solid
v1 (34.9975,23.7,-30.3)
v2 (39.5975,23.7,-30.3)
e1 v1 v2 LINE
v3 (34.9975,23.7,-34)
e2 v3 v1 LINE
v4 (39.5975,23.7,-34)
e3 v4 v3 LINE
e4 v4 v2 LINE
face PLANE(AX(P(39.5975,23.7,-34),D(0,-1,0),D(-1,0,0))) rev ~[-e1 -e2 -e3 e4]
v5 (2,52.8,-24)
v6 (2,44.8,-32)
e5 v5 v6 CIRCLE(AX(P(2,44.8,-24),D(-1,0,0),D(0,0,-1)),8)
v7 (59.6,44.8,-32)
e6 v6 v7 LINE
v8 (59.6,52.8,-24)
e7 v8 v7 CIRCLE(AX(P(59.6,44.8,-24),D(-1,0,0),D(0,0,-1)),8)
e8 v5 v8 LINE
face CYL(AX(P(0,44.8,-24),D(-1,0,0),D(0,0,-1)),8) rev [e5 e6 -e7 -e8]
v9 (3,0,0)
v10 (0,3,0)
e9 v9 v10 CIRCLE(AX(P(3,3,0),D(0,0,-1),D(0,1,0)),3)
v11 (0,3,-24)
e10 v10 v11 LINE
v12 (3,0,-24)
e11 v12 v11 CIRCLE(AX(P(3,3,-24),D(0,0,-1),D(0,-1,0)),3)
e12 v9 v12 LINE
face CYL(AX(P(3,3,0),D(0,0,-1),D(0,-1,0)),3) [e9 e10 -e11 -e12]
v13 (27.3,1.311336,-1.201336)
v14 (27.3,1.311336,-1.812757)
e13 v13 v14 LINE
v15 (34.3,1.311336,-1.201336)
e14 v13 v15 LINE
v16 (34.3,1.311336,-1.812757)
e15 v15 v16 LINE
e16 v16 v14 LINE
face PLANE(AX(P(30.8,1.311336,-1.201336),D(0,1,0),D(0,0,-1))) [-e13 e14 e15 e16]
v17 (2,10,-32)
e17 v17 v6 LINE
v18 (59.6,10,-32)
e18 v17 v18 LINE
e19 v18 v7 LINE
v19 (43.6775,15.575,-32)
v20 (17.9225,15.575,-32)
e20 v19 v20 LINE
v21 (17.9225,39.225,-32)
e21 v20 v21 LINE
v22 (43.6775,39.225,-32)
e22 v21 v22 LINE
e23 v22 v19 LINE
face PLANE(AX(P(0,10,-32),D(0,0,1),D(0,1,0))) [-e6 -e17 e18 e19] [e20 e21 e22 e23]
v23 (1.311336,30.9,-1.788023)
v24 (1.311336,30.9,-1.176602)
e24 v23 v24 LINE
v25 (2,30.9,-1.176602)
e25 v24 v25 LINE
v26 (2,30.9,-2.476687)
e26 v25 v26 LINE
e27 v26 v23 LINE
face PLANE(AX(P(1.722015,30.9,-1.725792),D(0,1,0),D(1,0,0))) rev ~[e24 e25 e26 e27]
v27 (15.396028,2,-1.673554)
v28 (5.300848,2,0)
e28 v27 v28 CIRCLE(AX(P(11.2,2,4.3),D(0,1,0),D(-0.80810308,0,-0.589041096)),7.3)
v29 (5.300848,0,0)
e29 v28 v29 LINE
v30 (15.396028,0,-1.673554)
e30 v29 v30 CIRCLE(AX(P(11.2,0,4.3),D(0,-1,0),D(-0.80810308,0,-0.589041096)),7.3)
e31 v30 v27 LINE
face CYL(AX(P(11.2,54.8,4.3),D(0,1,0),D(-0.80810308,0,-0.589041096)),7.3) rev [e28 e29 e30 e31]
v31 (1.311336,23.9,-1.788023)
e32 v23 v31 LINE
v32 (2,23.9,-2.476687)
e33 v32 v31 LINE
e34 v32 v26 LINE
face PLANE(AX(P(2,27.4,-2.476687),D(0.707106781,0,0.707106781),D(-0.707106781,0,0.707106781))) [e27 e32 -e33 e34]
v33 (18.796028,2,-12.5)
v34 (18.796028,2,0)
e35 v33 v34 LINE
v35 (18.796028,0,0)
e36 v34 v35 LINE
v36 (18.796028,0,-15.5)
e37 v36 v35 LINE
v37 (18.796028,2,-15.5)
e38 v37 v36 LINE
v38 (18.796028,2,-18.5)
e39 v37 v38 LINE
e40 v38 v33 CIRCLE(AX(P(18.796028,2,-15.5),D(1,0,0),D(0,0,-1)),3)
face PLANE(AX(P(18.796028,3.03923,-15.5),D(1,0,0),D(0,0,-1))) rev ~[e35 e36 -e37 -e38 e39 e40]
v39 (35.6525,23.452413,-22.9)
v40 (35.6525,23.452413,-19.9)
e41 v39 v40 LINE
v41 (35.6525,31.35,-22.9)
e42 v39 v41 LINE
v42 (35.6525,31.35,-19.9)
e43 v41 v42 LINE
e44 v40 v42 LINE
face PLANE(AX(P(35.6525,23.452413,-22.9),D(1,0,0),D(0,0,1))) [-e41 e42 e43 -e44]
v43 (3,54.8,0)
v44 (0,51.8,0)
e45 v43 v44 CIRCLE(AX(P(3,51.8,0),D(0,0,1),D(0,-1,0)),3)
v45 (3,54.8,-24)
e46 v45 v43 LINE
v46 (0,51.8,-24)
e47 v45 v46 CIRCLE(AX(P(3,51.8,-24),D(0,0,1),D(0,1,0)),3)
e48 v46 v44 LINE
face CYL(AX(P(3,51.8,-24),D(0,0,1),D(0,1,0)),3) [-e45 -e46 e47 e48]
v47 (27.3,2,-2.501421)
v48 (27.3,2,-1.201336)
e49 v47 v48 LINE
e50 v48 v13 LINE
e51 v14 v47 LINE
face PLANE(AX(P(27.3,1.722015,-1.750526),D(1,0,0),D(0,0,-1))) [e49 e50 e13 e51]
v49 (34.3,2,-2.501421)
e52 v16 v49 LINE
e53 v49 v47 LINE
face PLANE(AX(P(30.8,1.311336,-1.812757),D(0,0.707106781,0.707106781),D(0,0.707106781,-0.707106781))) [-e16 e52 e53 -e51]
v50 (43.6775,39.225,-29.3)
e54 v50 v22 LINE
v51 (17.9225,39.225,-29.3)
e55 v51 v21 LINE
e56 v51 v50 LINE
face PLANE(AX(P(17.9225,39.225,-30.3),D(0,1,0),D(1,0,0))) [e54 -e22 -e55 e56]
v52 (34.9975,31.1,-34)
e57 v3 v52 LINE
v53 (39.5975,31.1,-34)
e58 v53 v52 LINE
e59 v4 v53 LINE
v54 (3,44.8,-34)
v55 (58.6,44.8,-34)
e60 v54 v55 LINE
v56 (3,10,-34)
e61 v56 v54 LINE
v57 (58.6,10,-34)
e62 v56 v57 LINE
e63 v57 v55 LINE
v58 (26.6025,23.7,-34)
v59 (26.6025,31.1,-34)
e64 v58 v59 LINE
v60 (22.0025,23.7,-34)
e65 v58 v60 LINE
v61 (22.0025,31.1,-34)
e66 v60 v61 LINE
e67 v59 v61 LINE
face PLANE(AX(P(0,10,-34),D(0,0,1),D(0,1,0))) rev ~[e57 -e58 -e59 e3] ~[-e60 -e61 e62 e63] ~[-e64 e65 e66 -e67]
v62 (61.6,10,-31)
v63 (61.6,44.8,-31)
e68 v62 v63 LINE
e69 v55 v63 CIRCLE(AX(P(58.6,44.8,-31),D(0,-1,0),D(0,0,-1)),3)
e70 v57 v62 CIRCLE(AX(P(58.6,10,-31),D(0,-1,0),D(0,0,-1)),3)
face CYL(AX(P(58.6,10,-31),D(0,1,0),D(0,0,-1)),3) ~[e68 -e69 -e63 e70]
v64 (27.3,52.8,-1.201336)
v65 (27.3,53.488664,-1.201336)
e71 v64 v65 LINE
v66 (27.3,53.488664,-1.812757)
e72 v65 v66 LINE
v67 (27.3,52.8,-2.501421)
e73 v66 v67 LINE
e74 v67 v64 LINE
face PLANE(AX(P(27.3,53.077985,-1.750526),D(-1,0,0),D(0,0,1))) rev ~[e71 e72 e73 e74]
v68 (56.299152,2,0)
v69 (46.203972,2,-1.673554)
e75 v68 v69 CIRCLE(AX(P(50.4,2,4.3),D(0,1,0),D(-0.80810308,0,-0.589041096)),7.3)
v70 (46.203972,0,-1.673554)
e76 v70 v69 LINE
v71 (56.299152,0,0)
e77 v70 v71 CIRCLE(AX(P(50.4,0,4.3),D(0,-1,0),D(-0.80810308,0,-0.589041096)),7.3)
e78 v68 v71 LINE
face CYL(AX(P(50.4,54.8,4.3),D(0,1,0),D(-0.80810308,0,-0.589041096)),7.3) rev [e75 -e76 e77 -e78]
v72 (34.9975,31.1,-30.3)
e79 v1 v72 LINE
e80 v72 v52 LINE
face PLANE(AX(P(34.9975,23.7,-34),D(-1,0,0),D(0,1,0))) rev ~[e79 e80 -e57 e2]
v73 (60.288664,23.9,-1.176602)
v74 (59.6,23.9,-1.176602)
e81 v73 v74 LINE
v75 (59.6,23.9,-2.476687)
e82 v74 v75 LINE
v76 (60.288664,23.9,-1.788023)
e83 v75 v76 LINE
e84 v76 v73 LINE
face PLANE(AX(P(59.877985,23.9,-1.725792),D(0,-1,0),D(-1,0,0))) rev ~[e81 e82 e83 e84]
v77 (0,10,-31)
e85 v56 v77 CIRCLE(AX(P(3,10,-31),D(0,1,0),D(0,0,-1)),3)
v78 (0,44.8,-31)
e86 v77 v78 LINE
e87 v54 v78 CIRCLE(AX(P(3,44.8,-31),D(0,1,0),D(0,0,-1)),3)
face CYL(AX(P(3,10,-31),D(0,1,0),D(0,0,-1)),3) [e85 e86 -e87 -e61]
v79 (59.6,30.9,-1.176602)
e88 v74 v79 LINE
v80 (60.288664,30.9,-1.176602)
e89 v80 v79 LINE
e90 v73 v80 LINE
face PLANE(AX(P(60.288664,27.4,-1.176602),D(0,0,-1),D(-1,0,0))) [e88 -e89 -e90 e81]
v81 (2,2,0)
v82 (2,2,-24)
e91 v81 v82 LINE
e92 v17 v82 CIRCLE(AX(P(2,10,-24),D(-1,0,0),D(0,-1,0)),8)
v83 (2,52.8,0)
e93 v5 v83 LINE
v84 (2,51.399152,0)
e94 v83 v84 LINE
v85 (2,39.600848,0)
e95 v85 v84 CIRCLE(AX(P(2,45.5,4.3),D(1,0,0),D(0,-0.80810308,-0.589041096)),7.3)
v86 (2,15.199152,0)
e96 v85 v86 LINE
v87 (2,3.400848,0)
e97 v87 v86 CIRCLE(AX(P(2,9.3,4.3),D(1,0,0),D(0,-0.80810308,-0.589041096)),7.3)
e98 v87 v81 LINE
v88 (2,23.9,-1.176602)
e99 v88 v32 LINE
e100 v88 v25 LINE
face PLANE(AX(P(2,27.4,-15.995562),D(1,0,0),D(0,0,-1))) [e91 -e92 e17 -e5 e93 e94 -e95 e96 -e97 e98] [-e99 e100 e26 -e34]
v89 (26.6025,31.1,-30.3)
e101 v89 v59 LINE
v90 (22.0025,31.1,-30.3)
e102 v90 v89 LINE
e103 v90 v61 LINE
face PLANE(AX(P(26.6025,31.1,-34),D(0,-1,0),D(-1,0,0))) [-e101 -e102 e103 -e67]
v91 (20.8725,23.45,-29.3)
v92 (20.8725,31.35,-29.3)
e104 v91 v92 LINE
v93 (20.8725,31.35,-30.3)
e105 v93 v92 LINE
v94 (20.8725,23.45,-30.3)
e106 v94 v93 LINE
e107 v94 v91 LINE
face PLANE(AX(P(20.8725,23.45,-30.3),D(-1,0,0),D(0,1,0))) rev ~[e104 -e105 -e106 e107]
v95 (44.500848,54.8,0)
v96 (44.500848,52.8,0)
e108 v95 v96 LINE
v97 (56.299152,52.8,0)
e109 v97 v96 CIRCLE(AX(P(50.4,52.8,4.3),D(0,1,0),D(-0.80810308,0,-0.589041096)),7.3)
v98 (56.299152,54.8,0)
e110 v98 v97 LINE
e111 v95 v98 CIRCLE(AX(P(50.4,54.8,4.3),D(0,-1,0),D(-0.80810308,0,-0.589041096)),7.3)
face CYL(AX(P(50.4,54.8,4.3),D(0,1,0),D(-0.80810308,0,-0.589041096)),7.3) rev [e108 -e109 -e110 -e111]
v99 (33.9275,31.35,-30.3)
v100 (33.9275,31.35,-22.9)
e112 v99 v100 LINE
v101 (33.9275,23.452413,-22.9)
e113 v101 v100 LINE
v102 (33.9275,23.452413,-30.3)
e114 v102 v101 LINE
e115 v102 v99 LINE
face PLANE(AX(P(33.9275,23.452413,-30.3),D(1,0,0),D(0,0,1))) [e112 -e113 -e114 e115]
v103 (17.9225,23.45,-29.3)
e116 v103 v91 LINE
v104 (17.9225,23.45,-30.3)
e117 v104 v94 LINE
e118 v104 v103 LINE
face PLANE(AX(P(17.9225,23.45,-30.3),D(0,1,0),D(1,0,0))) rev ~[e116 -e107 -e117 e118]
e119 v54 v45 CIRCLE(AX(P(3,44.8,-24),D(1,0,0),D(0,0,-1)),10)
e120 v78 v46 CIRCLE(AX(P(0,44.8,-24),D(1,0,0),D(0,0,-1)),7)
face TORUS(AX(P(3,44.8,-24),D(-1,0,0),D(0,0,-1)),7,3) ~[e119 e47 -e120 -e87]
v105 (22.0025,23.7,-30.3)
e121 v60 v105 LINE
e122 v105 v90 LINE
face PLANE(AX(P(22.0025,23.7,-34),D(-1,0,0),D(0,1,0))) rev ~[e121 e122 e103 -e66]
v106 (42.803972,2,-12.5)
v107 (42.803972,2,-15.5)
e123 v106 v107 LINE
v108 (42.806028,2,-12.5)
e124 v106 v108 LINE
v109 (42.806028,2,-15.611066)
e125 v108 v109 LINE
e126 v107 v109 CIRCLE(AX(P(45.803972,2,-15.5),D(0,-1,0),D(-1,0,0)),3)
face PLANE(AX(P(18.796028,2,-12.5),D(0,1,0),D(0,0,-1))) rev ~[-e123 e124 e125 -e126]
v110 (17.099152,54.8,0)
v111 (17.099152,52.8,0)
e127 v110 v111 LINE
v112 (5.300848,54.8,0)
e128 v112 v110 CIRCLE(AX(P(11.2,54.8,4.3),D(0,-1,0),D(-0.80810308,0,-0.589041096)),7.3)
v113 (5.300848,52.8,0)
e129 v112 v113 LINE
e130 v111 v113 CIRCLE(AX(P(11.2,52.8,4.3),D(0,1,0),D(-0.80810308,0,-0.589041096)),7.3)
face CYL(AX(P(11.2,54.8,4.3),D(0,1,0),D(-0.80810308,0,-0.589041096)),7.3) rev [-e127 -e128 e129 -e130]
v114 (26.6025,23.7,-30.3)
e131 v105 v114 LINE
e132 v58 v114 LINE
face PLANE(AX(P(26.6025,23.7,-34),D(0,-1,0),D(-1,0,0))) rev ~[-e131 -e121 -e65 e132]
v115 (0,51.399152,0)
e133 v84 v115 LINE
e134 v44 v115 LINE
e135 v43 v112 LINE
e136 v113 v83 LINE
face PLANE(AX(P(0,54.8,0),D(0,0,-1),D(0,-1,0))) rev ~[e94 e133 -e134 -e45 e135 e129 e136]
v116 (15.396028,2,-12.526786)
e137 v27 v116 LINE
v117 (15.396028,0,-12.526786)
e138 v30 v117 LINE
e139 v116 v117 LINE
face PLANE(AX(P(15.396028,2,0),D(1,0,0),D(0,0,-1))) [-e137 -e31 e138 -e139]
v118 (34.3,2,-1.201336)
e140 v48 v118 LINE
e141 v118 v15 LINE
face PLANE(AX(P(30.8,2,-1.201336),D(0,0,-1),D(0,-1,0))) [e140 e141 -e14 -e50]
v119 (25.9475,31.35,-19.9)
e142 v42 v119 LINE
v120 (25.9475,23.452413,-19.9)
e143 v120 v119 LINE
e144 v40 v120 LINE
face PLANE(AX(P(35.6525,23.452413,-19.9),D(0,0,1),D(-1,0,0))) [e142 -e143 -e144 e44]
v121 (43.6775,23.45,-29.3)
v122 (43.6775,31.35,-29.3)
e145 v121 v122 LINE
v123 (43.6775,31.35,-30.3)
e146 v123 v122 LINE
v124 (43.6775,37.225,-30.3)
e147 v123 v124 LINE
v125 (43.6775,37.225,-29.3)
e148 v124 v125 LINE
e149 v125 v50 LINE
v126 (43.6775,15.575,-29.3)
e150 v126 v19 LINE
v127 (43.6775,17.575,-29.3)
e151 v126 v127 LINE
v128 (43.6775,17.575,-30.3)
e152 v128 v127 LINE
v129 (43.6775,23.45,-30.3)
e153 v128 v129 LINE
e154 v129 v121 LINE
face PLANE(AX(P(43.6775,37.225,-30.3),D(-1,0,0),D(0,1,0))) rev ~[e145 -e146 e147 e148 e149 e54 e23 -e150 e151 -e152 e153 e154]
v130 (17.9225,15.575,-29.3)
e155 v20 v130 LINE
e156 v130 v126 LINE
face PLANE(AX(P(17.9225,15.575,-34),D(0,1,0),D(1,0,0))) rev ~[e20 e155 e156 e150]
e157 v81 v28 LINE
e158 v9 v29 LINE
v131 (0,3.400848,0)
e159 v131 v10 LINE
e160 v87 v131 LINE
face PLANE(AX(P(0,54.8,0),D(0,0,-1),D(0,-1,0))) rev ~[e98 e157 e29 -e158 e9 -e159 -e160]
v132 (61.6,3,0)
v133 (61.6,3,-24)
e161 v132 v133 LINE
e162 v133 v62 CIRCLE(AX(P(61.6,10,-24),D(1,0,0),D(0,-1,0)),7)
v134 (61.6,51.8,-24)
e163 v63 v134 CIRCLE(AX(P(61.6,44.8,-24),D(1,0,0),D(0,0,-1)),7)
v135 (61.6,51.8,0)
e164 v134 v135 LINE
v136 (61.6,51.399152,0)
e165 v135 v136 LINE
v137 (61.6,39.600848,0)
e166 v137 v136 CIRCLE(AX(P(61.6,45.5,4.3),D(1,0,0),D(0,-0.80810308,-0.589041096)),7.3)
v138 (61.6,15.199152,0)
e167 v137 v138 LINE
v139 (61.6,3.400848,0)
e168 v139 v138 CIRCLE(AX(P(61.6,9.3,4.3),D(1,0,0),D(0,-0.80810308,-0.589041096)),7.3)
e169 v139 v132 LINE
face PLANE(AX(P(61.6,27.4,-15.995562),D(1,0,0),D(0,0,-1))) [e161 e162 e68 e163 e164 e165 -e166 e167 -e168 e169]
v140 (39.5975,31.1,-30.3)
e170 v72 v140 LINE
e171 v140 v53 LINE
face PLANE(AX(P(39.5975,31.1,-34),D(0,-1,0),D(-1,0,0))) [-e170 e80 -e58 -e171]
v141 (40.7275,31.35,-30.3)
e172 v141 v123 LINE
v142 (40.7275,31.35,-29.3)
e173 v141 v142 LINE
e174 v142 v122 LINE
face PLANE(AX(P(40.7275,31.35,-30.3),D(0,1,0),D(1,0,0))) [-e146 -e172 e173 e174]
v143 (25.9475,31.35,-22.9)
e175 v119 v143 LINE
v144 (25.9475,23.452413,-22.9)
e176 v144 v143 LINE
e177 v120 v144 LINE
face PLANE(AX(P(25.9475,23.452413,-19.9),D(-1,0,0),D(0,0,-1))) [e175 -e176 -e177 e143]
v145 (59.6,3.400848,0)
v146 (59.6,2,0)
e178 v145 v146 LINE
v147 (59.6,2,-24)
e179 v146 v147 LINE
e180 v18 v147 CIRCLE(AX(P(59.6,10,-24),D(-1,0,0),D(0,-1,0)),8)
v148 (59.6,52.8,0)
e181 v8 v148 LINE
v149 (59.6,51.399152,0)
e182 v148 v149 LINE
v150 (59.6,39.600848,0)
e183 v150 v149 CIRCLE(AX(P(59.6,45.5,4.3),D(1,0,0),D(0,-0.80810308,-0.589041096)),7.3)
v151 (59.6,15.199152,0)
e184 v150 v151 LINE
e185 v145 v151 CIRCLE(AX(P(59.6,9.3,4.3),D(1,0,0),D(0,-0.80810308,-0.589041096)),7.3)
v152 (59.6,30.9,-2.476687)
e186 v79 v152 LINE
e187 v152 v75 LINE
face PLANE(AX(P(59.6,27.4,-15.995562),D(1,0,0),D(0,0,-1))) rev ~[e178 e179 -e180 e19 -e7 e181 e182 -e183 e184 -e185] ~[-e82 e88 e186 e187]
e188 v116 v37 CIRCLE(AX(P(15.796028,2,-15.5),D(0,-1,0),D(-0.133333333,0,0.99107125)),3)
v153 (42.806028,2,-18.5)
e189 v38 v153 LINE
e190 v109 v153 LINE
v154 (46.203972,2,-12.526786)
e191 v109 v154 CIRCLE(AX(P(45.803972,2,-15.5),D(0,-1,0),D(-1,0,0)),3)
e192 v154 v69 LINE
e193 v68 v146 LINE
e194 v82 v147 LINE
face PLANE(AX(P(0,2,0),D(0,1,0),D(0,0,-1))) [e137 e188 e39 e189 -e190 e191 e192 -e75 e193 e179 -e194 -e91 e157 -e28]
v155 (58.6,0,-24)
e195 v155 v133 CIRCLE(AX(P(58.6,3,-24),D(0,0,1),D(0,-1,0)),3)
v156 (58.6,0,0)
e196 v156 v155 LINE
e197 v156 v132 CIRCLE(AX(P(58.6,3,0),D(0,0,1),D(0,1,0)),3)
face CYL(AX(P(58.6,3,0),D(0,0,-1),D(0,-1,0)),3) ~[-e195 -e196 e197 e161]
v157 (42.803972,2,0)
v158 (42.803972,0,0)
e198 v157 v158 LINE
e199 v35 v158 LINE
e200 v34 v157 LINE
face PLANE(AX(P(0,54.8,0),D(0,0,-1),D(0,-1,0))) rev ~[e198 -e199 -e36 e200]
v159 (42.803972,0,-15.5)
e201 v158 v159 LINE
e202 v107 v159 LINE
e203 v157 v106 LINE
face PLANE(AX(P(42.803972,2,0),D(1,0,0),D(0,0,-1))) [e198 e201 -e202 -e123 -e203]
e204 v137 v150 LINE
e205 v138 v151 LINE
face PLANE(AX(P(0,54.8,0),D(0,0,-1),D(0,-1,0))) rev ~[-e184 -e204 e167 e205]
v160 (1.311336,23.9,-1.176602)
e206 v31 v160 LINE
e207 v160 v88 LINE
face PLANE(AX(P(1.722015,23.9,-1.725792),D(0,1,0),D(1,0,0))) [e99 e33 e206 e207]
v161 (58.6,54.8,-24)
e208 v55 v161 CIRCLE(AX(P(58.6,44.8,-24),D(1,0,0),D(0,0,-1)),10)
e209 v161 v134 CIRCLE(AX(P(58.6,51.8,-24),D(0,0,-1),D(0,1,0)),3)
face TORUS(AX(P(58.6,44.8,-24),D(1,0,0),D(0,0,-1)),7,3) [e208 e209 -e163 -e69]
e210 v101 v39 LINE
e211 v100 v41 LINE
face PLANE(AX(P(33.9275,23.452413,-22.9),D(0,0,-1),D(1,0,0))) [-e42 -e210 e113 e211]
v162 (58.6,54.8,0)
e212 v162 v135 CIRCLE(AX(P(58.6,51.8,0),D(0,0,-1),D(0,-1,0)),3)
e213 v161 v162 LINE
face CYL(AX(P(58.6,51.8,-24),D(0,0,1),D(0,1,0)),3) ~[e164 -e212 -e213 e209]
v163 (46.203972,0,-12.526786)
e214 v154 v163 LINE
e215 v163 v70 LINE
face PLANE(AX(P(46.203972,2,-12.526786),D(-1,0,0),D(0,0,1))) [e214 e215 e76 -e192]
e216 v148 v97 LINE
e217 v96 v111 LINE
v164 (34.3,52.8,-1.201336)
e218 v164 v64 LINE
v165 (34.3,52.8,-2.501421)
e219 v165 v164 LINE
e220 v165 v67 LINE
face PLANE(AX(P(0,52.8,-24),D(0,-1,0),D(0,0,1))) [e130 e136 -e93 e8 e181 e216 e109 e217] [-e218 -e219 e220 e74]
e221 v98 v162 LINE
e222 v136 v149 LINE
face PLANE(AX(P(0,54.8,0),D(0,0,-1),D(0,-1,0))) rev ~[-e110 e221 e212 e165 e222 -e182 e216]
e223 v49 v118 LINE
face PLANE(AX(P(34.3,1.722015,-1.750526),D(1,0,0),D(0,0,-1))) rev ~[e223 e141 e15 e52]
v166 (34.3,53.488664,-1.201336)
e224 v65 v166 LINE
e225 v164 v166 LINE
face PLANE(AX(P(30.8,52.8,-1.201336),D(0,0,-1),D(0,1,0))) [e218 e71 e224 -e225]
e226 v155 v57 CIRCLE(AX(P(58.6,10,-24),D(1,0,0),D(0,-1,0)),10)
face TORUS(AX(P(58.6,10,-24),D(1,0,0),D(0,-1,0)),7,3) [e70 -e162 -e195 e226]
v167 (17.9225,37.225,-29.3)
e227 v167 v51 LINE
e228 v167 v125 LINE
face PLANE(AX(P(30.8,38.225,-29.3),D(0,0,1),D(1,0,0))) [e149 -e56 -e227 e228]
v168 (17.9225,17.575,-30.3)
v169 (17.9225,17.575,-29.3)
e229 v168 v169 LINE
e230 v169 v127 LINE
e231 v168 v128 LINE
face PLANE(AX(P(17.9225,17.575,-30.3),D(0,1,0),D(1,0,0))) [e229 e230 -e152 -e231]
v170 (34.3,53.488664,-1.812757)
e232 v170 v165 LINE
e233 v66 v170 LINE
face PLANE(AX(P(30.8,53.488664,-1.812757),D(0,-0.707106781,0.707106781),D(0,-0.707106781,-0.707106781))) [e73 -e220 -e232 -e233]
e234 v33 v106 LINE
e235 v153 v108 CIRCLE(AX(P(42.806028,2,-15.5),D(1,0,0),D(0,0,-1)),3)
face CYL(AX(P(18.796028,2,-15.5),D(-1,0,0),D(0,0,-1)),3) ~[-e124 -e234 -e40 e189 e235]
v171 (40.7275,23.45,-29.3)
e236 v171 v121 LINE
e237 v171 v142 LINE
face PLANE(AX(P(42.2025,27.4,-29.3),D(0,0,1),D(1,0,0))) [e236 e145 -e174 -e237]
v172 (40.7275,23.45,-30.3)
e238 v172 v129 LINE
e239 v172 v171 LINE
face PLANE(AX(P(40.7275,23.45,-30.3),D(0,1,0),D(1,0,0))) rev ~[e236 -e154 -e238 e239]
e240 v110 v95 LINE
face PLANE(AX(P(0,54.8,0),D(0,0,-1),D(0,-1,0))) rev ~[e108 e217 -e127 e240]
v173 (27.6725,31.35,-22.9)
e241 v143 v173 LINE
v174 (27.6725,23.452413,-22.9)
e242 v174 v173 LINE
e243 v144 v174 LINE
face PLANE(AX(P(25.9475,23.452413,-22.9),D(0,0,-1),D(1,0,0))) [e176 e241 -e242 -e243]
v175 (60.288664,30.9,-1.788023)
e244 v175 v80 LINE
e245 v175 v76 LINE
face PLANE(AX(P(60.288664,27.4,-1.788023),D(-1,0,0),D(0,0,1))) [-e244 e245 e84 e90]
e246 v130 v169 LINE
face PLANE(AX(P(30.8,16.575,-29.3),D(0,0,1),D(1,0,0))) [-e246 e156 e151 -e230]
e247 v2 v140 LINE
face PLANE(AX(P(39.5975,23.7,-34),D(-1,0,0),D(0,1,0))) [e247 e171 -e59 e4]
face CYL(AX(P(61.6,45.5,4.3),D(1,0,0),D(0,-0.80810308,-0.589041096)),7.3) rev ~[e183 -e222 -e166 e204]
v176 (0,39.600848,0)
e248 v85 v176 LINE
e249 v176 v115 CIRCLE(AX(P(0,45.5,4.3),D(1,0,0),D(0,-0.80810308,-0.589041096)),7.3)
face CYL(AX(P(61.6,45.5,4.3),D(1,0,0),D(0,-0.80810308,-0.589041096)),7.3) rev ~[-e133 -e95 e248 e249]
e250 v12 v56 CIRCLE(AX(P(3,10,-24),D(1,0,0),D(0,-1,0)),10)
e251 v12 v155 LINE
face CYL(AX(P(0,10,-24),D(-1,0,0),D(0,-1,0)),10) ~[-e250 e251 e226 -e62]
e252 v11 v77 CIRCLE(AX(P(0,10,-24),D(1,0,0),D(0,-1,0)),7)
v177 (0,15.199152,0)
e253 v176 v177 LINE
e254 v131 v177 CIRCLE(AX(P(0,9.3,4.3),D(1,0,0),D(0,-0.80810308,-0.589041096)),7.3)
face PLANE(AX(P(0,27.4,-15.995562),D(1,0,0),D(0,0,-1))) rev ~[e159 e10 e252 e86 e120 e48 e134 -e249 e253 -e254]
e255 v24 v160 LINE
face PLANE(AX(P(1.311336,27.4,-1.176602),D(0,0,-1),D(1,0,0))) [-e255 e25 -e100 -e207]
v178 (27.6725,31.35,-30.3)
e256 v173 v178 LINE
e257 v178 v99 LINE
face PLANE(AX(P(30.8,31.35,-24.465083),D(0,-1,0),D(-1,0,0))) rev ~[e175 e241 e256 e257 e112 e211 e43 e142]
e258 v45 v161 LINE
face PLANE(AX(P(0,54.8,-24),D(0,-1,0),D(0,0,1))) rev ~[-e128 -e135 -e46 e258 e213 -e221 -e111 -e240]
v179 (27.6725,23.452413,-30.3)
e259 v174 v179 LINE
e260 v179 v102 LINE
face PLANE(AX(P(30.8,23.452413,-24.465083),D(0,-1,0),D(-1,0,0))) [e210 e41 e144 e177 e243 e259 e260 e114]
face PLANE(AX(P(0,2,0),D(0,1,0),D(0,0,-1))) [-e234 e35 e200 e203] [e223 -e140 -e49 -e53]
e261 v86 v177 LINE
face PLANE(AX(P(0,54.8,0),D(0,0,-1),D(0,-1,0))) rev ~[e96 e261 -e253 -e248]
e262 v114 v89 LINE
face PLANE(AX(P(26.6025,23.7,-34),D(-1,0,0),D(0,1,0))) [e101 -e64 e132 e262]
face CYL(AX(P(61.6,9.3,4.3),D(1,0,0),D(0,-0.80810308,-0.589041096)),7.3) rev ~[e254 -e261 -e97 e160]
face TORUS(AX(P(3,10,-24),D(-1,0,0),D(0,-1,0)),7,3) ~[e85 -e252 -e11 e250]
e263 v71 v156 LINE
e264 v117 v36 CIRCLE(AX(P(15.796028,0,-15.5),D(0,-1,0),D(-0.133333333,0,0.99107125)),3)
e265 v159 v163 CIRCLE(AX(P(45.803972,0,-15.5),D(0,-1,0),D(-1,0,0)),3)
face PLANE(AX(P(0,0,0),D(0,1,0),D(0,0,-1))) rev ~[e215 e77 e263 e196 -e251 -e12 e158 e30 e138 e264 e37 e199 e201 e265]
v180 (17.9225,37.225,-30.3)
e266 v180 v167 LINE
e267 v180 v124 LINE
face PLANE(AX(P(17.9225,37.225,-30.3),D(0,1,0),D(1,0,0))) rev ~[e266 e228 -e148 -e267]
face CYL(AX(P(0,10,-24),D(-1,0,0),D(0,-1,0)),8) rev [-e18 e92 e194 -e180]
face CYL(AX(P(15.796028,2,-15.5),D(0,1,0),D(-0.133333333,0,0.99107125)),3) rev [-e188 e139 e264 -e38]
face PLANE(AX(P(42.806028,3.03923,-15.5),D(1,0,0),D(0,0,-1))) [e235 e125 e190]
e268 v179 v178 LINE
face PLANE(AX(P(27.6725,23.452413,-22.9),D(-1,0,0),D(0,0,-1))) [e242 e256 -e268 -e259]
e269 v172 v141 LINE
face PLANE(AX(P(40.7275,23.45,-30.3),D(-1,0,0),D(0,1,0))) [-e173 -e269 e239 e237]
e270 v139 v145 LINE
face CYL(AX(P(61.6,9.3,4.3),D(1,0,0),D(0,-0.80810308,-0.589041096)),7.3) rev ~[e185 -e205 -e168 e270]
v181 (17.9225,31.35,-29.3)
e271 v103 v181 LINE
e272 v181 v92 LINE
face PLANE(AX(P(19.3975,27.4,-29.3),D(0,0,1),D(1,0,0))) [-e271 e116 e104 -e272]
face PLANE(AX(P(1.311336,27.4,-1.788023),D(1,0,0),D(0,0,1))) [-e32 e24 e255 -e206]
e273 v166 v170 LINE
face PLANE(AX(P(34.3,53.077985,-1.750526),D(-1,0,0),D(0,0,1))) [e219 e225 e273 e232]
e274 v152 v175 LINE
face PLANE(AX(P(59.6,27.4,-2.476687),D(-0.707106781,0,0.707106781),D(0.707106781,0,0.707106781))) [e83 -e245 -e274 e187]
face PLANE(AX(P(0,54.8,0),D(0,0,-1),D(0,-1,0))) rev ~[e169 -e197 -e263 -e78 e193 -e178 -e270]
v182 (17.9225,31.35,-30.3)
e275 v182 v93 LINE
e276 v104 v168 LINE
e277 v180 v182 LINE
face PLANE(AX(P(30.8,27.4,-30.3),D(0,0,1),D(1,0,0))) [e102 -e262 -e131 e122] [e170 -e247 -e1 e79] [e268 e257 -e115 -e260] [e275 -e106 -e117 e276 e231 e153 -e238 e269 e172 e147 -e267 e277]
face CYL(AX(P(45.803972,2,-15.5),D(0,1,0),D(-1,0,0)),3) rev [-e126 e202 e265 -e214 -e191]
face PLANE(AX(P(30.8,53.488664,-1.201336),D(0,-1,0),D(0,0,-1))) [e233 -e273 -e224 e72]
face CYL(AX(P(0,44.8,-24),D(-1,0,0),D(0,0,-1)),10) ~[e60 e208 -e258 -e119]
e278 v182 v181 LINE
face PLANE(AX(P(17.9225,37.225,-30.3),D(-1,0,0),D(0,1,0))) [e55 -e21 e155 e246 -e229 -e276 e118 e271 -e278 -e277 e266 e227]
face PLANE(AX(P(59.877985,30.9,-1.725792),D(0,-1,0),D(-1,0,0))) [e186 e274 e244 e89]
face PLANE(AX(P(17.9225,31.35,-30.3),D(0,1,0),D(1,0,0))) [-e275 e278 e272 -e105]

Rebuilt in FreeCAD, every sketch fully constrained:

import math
import FreeCAD as App
import Part
import Sketcher
Q = App.Units.Quantity


def edges_at(feature, points):
    """Names of the edges that pass closest to the given points."""
    edges = feature.Shape.Edges
    near = lambda p: min(range(len(edges)), key=lambda i: edges[i].distToShape(Part.Vertex(*p))[0])
    return sorted({f"Edge{near(p) + 1}" for p in points})


def faces_at(feature, points):
    """Names of the faces that lie closest to the given points."""
    faces = feature.Shape.Faces
    near = lambda p: min(range(len(faces)), key=lambda i: faces[i].distToShape(Part.Vertex(*p))[0])
    return sorted({f"Face{near(p) + 1}" for p in points})


def add_polygon(sketch, points):
    """Adds a closed chain of lines whose ends are joined by coincident constraints."""
    first, n = sketch.GeometryCount, len(points)
    for a, b in zip(points, points[1:] + points[:1]):
        sketch.addGeometry(Part.LineSegment(App.Vector(*a, 0), App.Vector(*b, 0)), False)
    for i in range(n):
        sketch.addConstraint(Sketcher.Constraint("Coincident", first + i, 2, first + (i + 1) % n, 1))

doc = App.newDocument("Part")
body = doc.addObject("PartDesign::Body", "Body")

sketch1 = body.newObject("Sketcher::SketchObject", "Sketch")
sketch1.AttachmentSupport = (doc.getObject("YZ_Plane"), [""])
sketch1.MapMode = "FlatFace"
sketch1.addGeometry([
    Part.LineSegment(App.Vector(0, 0, 0), App.Vector(0, -24, 0)),
    Part.ArcOfCircle(Part.Circle(App.Vector(10, -24, 0), App.Vector(0, 0, 1), 10), math.radians(180), math.radians(270)),
    Part.LineSegment(App.Vector(10, -34, 0), App.Vector(45, -34, 0)),
    Part.ArcOfCircle(Part.Circle(App.Vector(45, -24, 0), App.Vector(0, 0, 1), 10), math.radians(-90), math.radians(0)),
    Part.LineSegment(App.Vector(55, -24, 0), App.Vector(55, 0, 0)),
    Part.LineSegment(App.Vector(55, 0, 0), App.Vector(0, 0, 0)),
], False)
sketch1.addConstraint([
    Sketcher.Constraint("Tangent", 0, 2, 1, 1),
    Sketcher.Constraint("Tangent", 1, 2, 2, 1),
    Sketcher.Constraint("Tangent", 2, 2, 3, 1),
    Sketcher.Constraint("Tangent", 3, 2, 4, 1),
    Sketcher.Constraint("Coincident", 4, 2, 5, 1),
    Sketcher.Constraint("Coincident", 5, 2, 0, 1),
    Sketcher.Constraint("Vertical", 0),
    Sketcher.Constraint("Horizontal", 2),
    Sketcher.Constraint("Vertical", 4),
    Sketcher.Constraint("Horizontal", 5),
    Sketcher.Constraint("Coincident", 5, 2, -1, 1),
    Sketcher.Constraint("Equal", 1, 3),
    Sketcher.Constraint("Radius", 1, Q("10 mm")),
    Sketcher.Constraint("DistanceY", 0, 2, 0, 1, Q("24 mm")),
    Sketcher.Constraint("DistanceX", 2, 1, 2, 2, Q("34.8 mm")),
])
pad1 = body.newObject("PartDesign::Pad", "Pad")
pad1.Profile = sketch1
pad1.Length = 61.6
doc.recompute()

thickness = body.newObject("PartDesign::Thickness", "Thickness")
thickness.Base = (pad1, faces_at(pad1, [(30.8, 27.4, 0)]))
thickness.Value = 2
thickness.Reversed = True
thickness.Join = "Intersection"
doc.recompute()

fillet = body.newObject("PartDesign::Fillet", "Fillet")
fillet.Base = (thickness, edges_at(thickness, [
    (61.6, 2.929, -31.071),
    (61.6, 27.4, -34),
    (61.6, 51.871, -31.071),
    (61.6, 54.8, -12),
    (0, 54.8, -12),
    (0, 51.871, -31.071),
    (0, 27.4, -34),
    (61.6, 0, -12),
    (0, 2.929, -31.071),
    (0, 0, -12),
]))
fillet.Radius = 3

sketch2 = body.newObject("Sketcher::SketchObject", "Sketch001")
sketch2.AttachmentSupport = (doc.getObject("XY_Plane"), [""])
sketch2.MapMode = "FlatFace"
sketch2.AttachmentOffset = App.Placement(App.Vector(0, 0, -34), App.Rotation())
add_polygon(sketch2, [(39.6, 31.1), (39.6, 23.7), (35, 23.7), (35, 31.1)])
sketch2.addConstraint([
    Sketcher.Constraint("Vertical", 0),
    Sketcher.Constraint("Horizontal", 1),
    Sketcher.Constraint("Vertical", 2),
    Sketcher.Constraint("Horizontal", 3),
    Sketcher.Constraint("DistanceX", 1, 2, 1, 1, Q("4.6 mm")),
    Sketcher.Constraint("DistanceY", 0, 2, 0, 1, Q("7.4 mm")),
    Sketcher.Constraint("DistanceY", -1, 1, 0, 2, Q("23.7 mm")),
    Sketcher.Constraint("DistanceX", -1, 1, 0, 2, Q("39.5975 mm")),
])
pocket1 = body.newObject("PartDesign::Pocket", "Pocket")
pocket1.Profile = sketch2
pocket1.Type = "UpToFirst"
pocket1.Reversed = True

sketch3 = body.newObject("Sketcher::SketchObject", "Sketch002")
sketch3.AttachmentSupport = (doc.getObject("XY_Plane"), [""])
sketch3.MapMode = "FlatFace"
sketch3.AttachmentOffset = App.Placement(App.Vector(0, 0, -34), App.Rotation())
add_polygon(sketch3, [(26.6, 31.1), (26.6, 23.7), (22, 23.7), (22, 31.1)])
sketch3.addConstraint([
    Sketcher.Constraint("Vertical", 0),
    Sketcher.Constraint("Horizontal", 1),
    Sketcher.Constraint("Vertical", 2),
    Sketcher.Constraint("Horizontal", 3),
    Sketcher.Constraint("DistanceX", 1, 2, 1, 1, Q("4.6 mm")),
    Sketcher.Constraint("DistanceY", 0, 2, 0, 1, Q("7.4 mm")),
    Sketcher.Constraint("DistanceY", -1, 1, 0, 2, Q("23.7 mm")),
    Sketcher.Constraint("DistanceX", -1, 1, 0, 2, Q("26.6025 mm")),
])
pocket2 = body.newObject("PartDesign::Pocket", "Pocket001")
pocket2.Profile = sketch3
pocket2.Type = "UpToFirst"
pocket2.Reversed = True

sketch4 = body.newObject("Sketcher::SketchObject", "Sketch003")
sketch4.AttachmentSupport = (doc.getObject("XY_Plane"), [""])
sketch4.MapMode = "FlatFace"
sketch4.AttachmentOffset = App.Placement(App.Vector(0, 0, -34), App.Rotation())
add_polygon(sketch4, [(17.9, 15.6), (43.7, 15.6), (43.7, 39.2), (17.9, 39.2)])
add_polygon(sketch4, [(26.6, 23.7), (22, 23.7), (22, 31.1), (26.6, 31.1)])
add_polygon(sketch4, [(39.6, 23.7), (35, 23.7), (35, 31.1), (39.6, 31.1)])
sketch4.addConstraint([
    Sketcher.Constraint("Horizontal", 0),
    Sketcher.Constraint("Vertical", 1),
    Sketcher.Constraint("Horizontal", 2),
    Sketcher.Constraint("Vertical", 3),
    Sketcher.Constraint("Horizontal", 4),
    Sketcher.Constraint("Vertical", 5),
    Sketcher.Constraint("Horizontal", 6),
    Sketcher.Constraint("Vertical", 7),
    Sketcher.Constraint("Horizontal", 8),
    Sketcher.Constraint("Vertical", 9),
    Sketcher.Constraint("Horizontal", 10),
    Sketcher.Constraint("Vertical", 11),
    Sketcher.Constraint("Horizontal", 7, 2, 8, 2),
    Sketcher.Constraint("Horizontal", 6, 2, 9, 2),
    Sketcher.Constraint("Equal", 6, 8),
    Sketcher.Constraint("DistanceX", 4, 2, 4, 1, Q("4.6 mm")),
    Sketcher.Constraint("DistanceY", 5, 1, 5, 2, Q("7.4 mm")),
    Sketcher.Constraint("DistanceY", 1, 1, 1, 2, Q("23.65 mm")),
    Sketcher.Constraint("DistanceY", -1, 1, 4, 2, Q("23.7 mm")),
    Sketcher.Constraint("DistanceX", 0, 1, 0, 2, Q("25.755 mm")),
    Sketcher.Constraint("DistanceX", 3, 2, 4, 2, Q("4.08 mm")),
    Sketcher.Constraint("DistanceX", 8, 2, 0, 2, Q("8.68 mm")),
    Sketcher.Constraint("DistanceY", -1, 1, 0, 2, Q("15.575 mm")),
    Sketcher.Constraint("DistanceX", -1, 1, 0, 2, Q("43.6775 mm")),
])
pad2 = body.newObject("PartDesign::Pad", "Pad001")
pad2.Profile = sketch4
pad2.Length = 3.7

sketch5 = body.newObject("Sketcher::SketchObject", "Sketch004")
sketch5.AttachmentSupport = (doc.getObject("XY_Plane"), [""])
sketch5.MapMode = "FlatFace"
sketch5.AttachmentOffset = App.Placement(App.Vector(0, 0, -30.3), App.Rotation())
add_polygon(sketch5, [(17.9, 31.4), (17.9, 23.4), (20.9, 23.4), (20.9, 31.4)])
add_polygon(sketch5, [(40.7, 31.4), (40.7, 23.4), (43.7, 23.4), (43.7, 31.4)])
add_polygon(sketch5, [(17.9, 39.2), (17.9, 37.2), (43.7, 37.2), (43.7, 39.2)])
add_polygon(sketch5, [(17.9, 17.6), (17.9, 15.6), (43.7, 15.6), (43.7, 17.6)])
sketch5.addConstraint([
    Sketcher.Constraint("Vertical", 0),
    Sketcher.Constraint("Horizontal", 1),
    Sketcher.Constraint("Vertical", 2),
    Sketcher.Constraint("Horizontal", 3),
    Sketcher.Constraint("Vertical", 4),
    Sketcher.Constraint("Horizontal", 5),
    Sketcher.Constraint("Vertical", 6),
    Sketcher.Constraint("Horizontal", 7),
    Sketcher.Constraint("Vertical", 8),
    Sketcher.Constraint("Horizontal", 9),
    Sketcher.Constraint("Vertical", 10),
    Sketcher.Constraint("Horizontal", 11),
    Sketcher.Constraint("Vertical", 12),
    Sketcher.Constraint("Horizontal", 13),
    Sketcher.Constraint("Vertical", 14),
    Sketcher.Constraint("Horizontal", 15),
    Sketcher.Constraint("Horizontal", 1, 2, 4, 2),
    Sketcher.Constraint("Horizontal", 3, 2, 6, 2),
    Sketcher.Constraint("Vertical", 3, 2, 8, 2),
    Sketcher.Constraint("Vertical", 6, 2, 9, 2),
    Sketcher.Constraint("Vertical", 11, 2, 12, 2),
    Sketcher.Constraint("Vertical", 10, 2, 13, 2),
    Sketcher.Constraint("Equal", 3, 5),
    Sketcher.Constraint("Equal", 10, 12),
    Sketcher.Constraint("DistanceY", 8, 2, 8, 1, Q("2 mm")),
    Sketcher.Constraint("DistanceY", 0, 2, 0, 1, Q("7.9 mm")),
    Sketcher.Constraint("DistanceX", 1, 1, 1, 2, Q("2.95 mm")),
    Sketcher.Constraint("DistanceX", 9, 1, 9, 2, Q("25.755 mm")),
    Sketcher.Constraint("DistanceY", -1, 1, 0, 2, Q("23.45 mm")),
    Sketcher.Constraint("DistanceY", 12, 2, 8, 2, Q("21.65 mm")),
    Sketcher.Constraint("DistanceY", -1, 1, 8, 2, Q("37.225 mm")),
    Sketcher.Constraint("DistanceX", -1, 1, 0, 2, Q("17.9225 mm")),
])
pad3 = body.newObject("PartDesign::Pad", "Pad002")
pad3.Profile = sketch5
pad3.Length = 1

sketch6 = body.newObject("Sketcher::SketchObject", "Sketch005")
sketch6.AttachmentSupport = (doc.getObject("XZ_Plane"), [""])
sketch6.MapMode = "FlatFace"
sketch6.AttachmentOffset = App.Placement(App.Vector(0, 0, -23.452413), App.Rotation())
add_polygon(sketch6, [(33.9, -30.3), (27.7, -30.3), (27.7, -22.9), (25.9, -22.9), (25.9, -19.9), (35.7, -19.9), (35.7, -22.9), (33.9, -22.9)])
sketch6.addConstraint([
    Sketcher.Constraint("Horizontal", 0),
    Sketcher.Constraint("Vertical", 1),
    Sketcher.Constraint("Horizontal", 2),
    Sketcher.Constraint("Vertical", 3),
    Sketcher.Constraint("Horizontal", 4),
    Sketcher.Constraint("Vertical", 5),
    Sketcher.Constraint("Horizontal", 6),
    Sketcher.Constraint("Vertical", 7),
    Sketcher.Constraint("Horizontal", 2, 2, 5, 2),
    Sketcher.Constraint("Equal", 2, 6),
    Sketcher.Constraint("DistanceY", 3, 1, 3, 2, Q("3 mm")),
    Sketcher.Constraint("DistanceY", 1, 1, 1, 2, Q("7.4 mm")),
    Sketcher.Constraint("DistanceY", 0, 2, -1, 1, Q("30.3 mm")),
    Sketcher.Constraint("DistanceX", 0, 2, 0, 1, Q("6.255 mm")),
    Sketcher.Constraint("DistanceX", 2, 2, 2, 1, Q("1.725 mm")),
    Sketcher.Constraint("DistanceX", -1, 1, 0, 2, Q("27.6725 mm")),
])
pad4 = body.newObject("PartDesign::Pad", "Pad003")
pad4.Profile = sketch6
pad4.Length = 7.897587
pad4.Reversed = True

sketch7 = body.newObject("Sketcher::SketchObject", "Sketch006")
sketch7.AttachmentSupport = (doc.getObject("YZ_Plane"), [""])
sketch7.MapMode = "FlatFace"
sketch7.AttachmentOffset = App.Placement(App.Vector(0, 0, 61.6), App.Rotation())
sketch7.addGeometry([
    Part.LineSegment(App.Vector(40, 0, 0), App.Vector(51, 0, 0)),
    Part.ArcOfCircle(Part.Circle(App.Vector(46, 4, 0), App.Vector(0, 0, 1), 7), math.radians(-144), math.radians(-36)),
    Part.LineSegment(App.Vector(3, 0, 0), App.Vector(15, 0, 0)),
    Part.ArcOfCircle(Part.Circle(App.Vector(9, 4, 0), App.Vector(0, 0, 1), 7), math.radians(-144), math.radians(-36)),
], False)
sketch7.addConstraint([
    Sketcher.Constraint("Coincident", 0, 1, 1, 1),
    Sketcher.Constraint("Coincident", 1, 2, 0, 2),
    Sketcher.Constraint("Coincident", 2, 1, 3, 1),
    Sketcher.Constraint("Coincident", 3, 2, 2, 2),
    Sketcher.Constraint("Horizontal", 0),
    Sketcher.Constraint("Horizontal", 2),
    Sketcher.Constraint("Equal", 1, 3),
    Sketcher.Constraint("PointOnObject", 0, 1, -1),
    Sketcher.Constraint("PointOnObject", 2, 1, -1),
    Sketcher.Constraint("Horizontal", 1, 3, 3, 3),
    Sketcher.Constraint("Radius", 1, Q("7.3 mm")),
    Sketcher.Constraint("DistanceX", -1, 1, 1, 3, Q("45.5 mm")),
    Sketcher.Constraint("DistanceY", -1, 1, 1, 3, Q("4.3 mm")),
    Sketcher.Constraint("DistanceX", -1, 1, 3, 3, Q("9.3 mm")),
])
pocket3 = body.newObject("PartDesign::Pocket", "Pocket002")
pocket3.Profile = sketch7
pocket3.Length = 61.6

sketch8 = body.newObject("Sketcher::SketchObject", "Sketch007")
sketch8.AttachmentSupport = (doc.getObject("XZ_Plane"), [""])
sketch8.MapMode = "FlatFace"
sketch8.AttachmentOffset = App.Placement(App.Vector(0, 0, -54.8), App.Rotation())
sketch8.addGeometry([
    Part.LineSegment(App.Vector(56, 0, 0), App.Vector(45, 0, 0)),
    Part.ArcOfCircle(Part.Circle(App.Vector(50, 4, 0), App.Vector(0, 0, 1), 7), math.radians(-144), math.radians(-36)),
    Part.LineSegment(App.Vector(17, 0, 0), App.Vector(5, 0, 0)),
    Part.ArcOfCircle(Part.Circle(App.Vector(11, 4, 0), App.Vector(0, 0, 1), 7), math.radians(-144), math.radians(-36)),
], False)
sketch8.addConstraint([
    Sketcher.Constraint("Coincident", 0, 1, 1, 2),
    Sketcher.Constraint("Coincident", 1, 1, 0, 2),
    Sketcher.Constraint("Coincident", 2, 1, 3, 2),
    Sketcher.Constraint("Coincident", 3, 1, 2, 2),
    Sketcher.Constraint("Horizontal", 0),
    Sketcher.Constraint("Horizontal", 2),
    Sketcher.Constraint("Equal", 1, 3),
    Sketcher.Constraint("PointOnObject", 0, 1, -1),
    Sketcher.Constraint("PointOnObject", 2, 1, -1),
    Sketcher.Constraint("Horizontal", 1, 3, 3, 3),
    Sketcher.Constraint("Radius", 1, Q("7.3 mm")),
    Sketcher.Constraint("DistanceX", -1, 1, 1, 3, Q("50.4 mm")),
    Sketcher.Constraint("DistanceY", -1, 1, 1, 3, Q("4.3 mm")),
    Sketcher.Constraint("DistanceX", -1, 1, 3, 3, Q("11.2 mm")),
])
pocket4 = body.newObject("PartDesign::Pocket", "Pocket003")
pocket4.Profile = sketch8
pocket4.Length = 54.8
pocket4.Reversed = True

sketch9 = body.newObject("Sketcher::SketchObject", "Sketch008")
sketch9.AttachmentSupport = (doc.getObject("XZ_Plane"), [""])
sketch9.MapMode = "FlatFace"
sketch9.AttachmentOffset = App.Placement(App.Vector(0, 0, -27.4), App.Rotation())
add_polygon(sketch9, [(59.6, -1.2), (59.6, -2.5), (60.3, -1.8), (60.3, -1.2)])
add_polygon(sketch9, [(2, -1.2), (1.3, -1.2), (1.3, -1.8), (2, -2.5)])
sketch9.addConstraint([
    Sketcher.Constraint("Vertical", 0),
    Sketcher.Constraint("Vertical", 2),
    Sketcher.Constraint("Horizontal", 3),
    Sketcher.Constraint("Horizontal", 4),
    Sketcher.Constraint("Vertical", 5),
    Sketcher.Constraint("Vertical", 7),
    Sketcher.Constraint("Perpendicular", 1, 6),
    Sketcher.Constraint("Horizontal", 3, 2, 4, 2),
    Sketcher.Constraint("Horizontal", 1, 2, 5, 2),
    Sketcher.Constraint("Horizontal", 0, 2, 6, 2),
    Sketcher.Constraint("Equal", 3, 4),
    Sketcher.Constraint("DistanceX", -1, 1, 6, 2, Q("2 mm")),
    Sketcher.Constraint("DistanceX", -1, 1, 0, 2, Q("59.6 mm")),
    Sketcher.Constraint("DistanceY", 2, 1, 2, 2, Q("0.611421 mm")),
    Sketcher.Constraint("DistanceY", 2, 2, -1, 1, Q("1.176602 mm")),
    Sketcher.Constraint("Distance", 1, Q("0.973918 mm")),
])
pocket5 = body.newObject("PartDesign::Pocket", "Pocket004")
pocket5.Profile = sketch9
pocket5.Length = 7
pocket5.Midplane = True

sketch10 = body.newObject("Sketcher::SketchObject", "Sketch009")
sketch10.AttachmentSupport = (doc.getObject("YZ_Plane"), [""])
sketch10.MapMode = "FlatFace"
sketch10.AttachmentOffset = App.Placement(App.Vector(0, 0, 30.8), App.Rotation())
add_polygon(sketch10, [(2, -2.5), (2, -1.2), (1.3, -1.2), (1.3, -1.8)])
add_polygon(sketch10, [(52.8, -2.5), (53.5, -1.8), (53.5, -1.2), (52.8, -1.2)])
sketch10.addConstraint([
    Sketcher.Constraint("Vertical", 0),
    Sketcher.Constraint("Horizontal", 1),
    Sketcher.Constraint("Vertical", 2),
    Sketcher.Constraint("Vertical", 5),
    Sketcher.Constraint("Horizontal", 6),
    Sketcher.Constraint("Vertical", 7),
    Sketcher.Constraint("Perpendicular", 3, 4),
    Sketcher.Constraint("Horizontal", 2, 2, 4, 2),
    Sketcher.Constraint("Horizontal", 1, 2, 5, 2),
    Sketcher.Constraint("Horizontal", 3, 2, 7, 2),
    Sketcher.Constraint("Equal", 1, 6),
    Sketcher.Constraint("DistanceX", -1, 1, 0, 2, Q("2 mm")),
    Sketcher.Constraint("DistanceX", -1, 1, 6, 2, Q("52.8 mm")),
    Sketcher.Constraint("DistanceY", 2, 2, 2, 1, Q("0.611421 mm")),
    Sketcher.Constraint("Distance", 3, Q("0.973918 mm")),
    Sketcher.Constraint("DistanceY", 3, 2, -1, 1, Q("2.501421 mm")),
])
pocket6 = body.newObject("PartDesign::Pocket", "Pocket005")
pocket6.Profile = sketch10
pocket6.Length = 7
pocket6.Midplane = True

sketch11 = body.newObject("Sketcher::SketchObject", "Sketch010")
sketch11.AttachmentSupport = (doc.getObject("XZ_Plane"), [""])
sketch11.MapMode = "FlatFace"
sketch11.AttachmentOffset = App.Placement(App.Vector(0, 0, -2), App.Rotation())
sketch11.addGeometry([
    Part.LineSegment(App.Vector(15.4, 0, 0), App.Vector(15.4, -12.5, 0)),
    Part.ArcOfCircle(Part.Circle(App.Vector(15.8, -15.5, 0), App.Vector(0, 0, 1), 3), math.radians(98), math.radians(360)),
    Part.LineSegment(App.Vector(18.8, -15.5, 0), App.Vector(18.8, 0, 0)),
    Part.LineSegment(App.Vector(18.8, 0, 0), App.Vector(15.4, 0, 0)),
    Part.LineSegment(App.Vector(46.2, 0, 0), App.Vector(42.8, 0, 0)),
    Part.LineSegment(App.Vector(42.8, 0, 0), App.Vector(42.8, -15.5, 0)),
    Part.ArcOfCircle(Part.Circle(App.Vector(45.8, -15.5, 0), App.Vector(0, 0, 1), 3), math.radians(180), math.radians(442)),
    Part.LineSegment(App.Vector(46.2, -12.5, 0), App.Vector(46.2, 0, 0)),
], False)
sketch11.addConstraint([
    Sketcher.Constraint("Coincident", 0, 2, 1, 1),
    Sketcher.Constraint("Tangent", 1, 2, 2, 1),
    Sketcher.Constraint("Coincident", 2, 2, 3, 1),
    Sketcher.Constraint("Coincident", 3, 2, 0, 1),
    Sketcher.Constraint("Coincident", 4, 2, 5, 1),
    Sketcher.Constraint("Tangent", 5, 2, 6, 1),
    Sketcher.Constraint("Coincident", 6, 2, 7, 1),
    Sketcher.Constraint("Coincident", 7, 2, 4, 1),
    Sketcher.Constraint("Vertical", 0),
    Sketcher.Constraint("Vertical", 2),
    Sketcher.Constraint("Horizontal", 3),
    Sketcher.Constraint("Horizontal", 4),
    Sketcher.Constraint("Vertical", 5),
    Sketcher.Constraint("Vertical", 7),
    Sketcher.Constraint("Equal", 1, 6),
    Sketcher.Constraint("PointOnObject", 2, 2, -1),
    Sketcher.Constraint("PointOnObject", 4, 2, -1),
    Sketcher.Constraint("Horizontal", 1, 3, 6, 3),
    Sketcher.Constraint("Horizontal", 0, 2, 6, 2),
    Sketcher.Constraint("Radius", 1, Q("3 mm")),
    Sketcher.Constraint("DistanceX", 3, 2, 3, 1, Q("3.4 mm")),
    Sketcher.Constraint("DistanceY", 2, 1, 2, 2, Q("15.5 mm")),
    Sketcher.Constraint("DistanceX", -1, 1, 1, 3, Q("15.796028 mm")),
    Sketcher.Constraint("DistanceX", -1, 1, 6, 3, Q("45.803972 mm")),
])
pocket7 = body.newObject("PartDesign::Pocket", "Pocket006")
pocket7.Profile = sketch11
pocket7.Length = 2
pocket7.Reversed = True

sketch12 = body.newObject("Sketcher::SketchObject", "Sketch011")
sketch12.AttachmentSupport = (doc.getObject("YZ_Plane"), [""])
sketch12.MapMode = "FlatFace"
sketch12.AttachmentOffset = App.Placement(App.Vector(0, 0, 18.796028), App.Rotation())
sketch12.addGeometry([
    Part.LineSegment(App.Vector(2, -18.5, 0), App.Vector(2, -12.5, 0)),
    Part.ArcOfCircle(Part.Circle(App.Vector(2, -15.5, 0), App.Vector(0, 0, 1), 3), math.radians(-90), math.radians(90)),
], False)
sketch12.addConstraint([
    Sketcher.Constraint("Coincident", 0, 1, 1, 1),
    Sketcher.Constraint("Coincident", 1, 2, 0, 2),
    Sketcher.Constraint("Vertical", 0),
    Sketcher.Constraint("Vertical", 1, 3, 0, 1),
    Sketcher.Constraint("Radius", 1, Q("3 mm")),
    Sketcher.Constraint("DistanceX", -1, 1, 1, 3, Q("2 mm")),
    Sketcher.Constraint("DistanceY", 1, 3, -1, 1, Q("15.5 mm")),
])
pad5 = body.newObject("PartDesign::Pad", "Pad004")
pad5.Profile = sketch12
pad5.Length = 24.01

doc.recompute()
